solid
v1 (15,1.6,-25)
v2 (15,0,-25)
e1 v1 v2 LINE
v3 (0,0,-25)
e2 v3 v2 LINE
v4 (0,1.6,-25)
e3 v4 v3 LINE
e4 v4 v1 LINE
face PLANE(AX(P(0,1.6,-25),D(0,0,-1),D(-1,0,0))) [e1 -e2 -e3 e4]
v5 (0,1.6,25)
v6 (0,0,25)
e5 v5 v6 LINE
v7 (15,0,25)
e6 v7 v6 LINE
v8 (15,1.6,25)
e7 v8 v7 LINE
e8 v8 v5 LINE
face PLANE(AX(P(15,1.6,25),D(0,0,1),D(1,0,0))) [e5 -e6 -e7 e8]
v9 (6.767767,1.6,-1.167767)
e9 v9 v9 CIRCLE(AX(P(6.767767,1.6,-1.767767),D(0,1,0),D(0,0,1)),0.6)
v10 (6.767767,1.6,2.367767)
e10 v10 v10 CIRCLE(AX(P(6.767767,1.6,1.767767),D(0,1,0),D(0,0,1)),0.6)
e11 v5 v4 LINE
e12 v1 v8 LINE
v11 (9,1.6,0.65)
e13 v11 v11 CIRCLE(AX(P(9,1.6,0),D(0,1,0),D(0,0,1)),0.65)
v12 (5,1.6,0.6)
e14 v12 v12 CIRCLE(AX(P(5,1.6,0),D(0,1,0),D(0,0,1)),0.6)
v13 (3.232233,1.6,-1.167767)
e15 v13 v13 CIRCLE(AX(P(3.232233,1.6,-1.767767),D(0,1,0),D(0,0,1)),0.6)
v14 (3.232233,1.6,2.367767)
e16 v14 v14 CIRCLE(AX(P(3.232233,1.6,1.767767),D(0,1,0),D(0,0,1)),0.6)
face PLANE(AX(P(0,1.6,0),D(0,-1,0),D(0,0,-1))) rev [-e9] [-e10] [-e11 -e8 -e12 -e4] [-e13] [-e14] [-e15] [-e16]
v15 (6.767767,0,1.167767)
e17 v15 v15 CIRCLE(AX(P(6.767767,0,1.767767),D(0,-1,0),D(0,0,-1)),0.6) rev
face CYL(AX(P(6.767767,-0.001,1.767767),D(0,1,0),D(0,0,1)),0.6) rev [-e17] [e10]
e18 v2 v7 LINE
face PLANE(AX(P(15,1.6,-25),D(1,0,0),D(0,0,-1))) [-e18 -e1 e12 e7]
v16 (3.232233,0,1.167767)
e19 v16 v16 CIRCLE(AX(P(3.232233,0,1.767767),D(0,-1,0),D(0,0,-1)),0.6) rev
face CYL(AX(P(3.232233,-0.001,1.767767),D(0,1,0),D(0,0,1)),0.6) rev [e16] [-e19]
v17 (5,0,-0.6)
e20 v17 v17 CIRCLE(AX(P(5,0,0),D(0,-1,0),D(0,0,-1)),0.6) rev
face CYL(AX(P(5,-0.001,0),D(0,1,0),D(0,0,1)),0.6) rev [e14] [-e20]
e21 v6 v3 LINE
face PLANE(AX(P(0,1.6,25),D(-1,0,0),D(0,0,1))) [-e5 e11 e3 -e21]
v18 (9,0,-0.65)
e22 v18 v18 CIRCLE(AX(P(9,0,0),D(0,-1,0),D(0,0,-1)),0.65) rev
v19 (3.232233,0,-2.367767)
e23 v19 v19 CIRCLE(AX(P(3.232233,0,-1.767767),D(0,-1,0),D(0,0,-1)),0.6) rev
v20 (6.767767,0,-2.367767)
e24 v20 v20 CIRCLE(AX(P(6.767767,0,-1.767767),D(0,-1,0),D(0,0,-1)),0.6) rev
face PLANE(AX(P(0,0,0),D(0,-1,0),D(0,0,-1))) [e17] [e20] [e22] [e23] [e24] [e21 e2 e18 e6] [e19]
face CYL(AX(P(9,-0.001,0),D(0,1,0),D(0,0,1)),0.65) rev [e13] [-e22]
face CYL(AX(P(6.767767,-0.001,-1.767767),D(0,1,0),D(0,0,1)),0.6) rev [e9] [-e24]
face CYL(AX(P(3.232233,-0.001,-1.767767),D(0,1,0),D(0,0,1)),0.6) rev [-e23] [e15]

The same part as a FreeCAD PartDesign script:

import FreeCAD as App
import Part
import Sketcher


def add_polygon(sketch, points):
    """Adds a closed chain of lines whose ends are joined by coincident constraints."""
    first, n = sketch.GeometryCount, len(points)
    for a, b in zip(points, points[1:] + points[:1]):
        sketch.addGeometry(Part.LineSegment(App.Vector(*a, 0), App.Vector(*b, 0)), False)
    for i in range(n):
        sketch.addConstraint(Sketcher.Constraint("Coincident", first + i, 2, first + (i + 1) % n, 1))

doc = App.newDocument("Part")
body = doc.addObject("PartDesign::Body", "Body")

# Sketch on XZ plane
sketch1 = body.newObject("Sketcher::SketchObject", "Sketch")
sketch1.AttachmentSupport = (doc.getObject("XZ_Plane"), [""])
sketch1.MapMode = "FlatFace"
add_polygon(sketch1, [(0, -25), (0, 25), (15, 25), (15, -25)])  # lines 0-3
sketch1.addConstraint(Sketcher.Constraint("Vertical", 0))
sketch1.addConstraint(Sketcher.Constraint("Horizontal", 1))
sketch1.addConstraint(Sketcher.Constraint("Vertical", 2))
sketch1.addConstraint(Sketcher.Constraint("Horizontal", 3))
sketch1.addConstraint(Sketcher.Constraint("Symmetric", 0, 2, 3, 2, -1, 1))
sketch1.addConstraint(Sketcher.Constraint("DistanceX", 1, 1, 1, 2, 15.0))
sketch1.addConstraint(Sketcher.Constraint("DistanceY", 0, 1, 0, 2, 50.0))
pad1 = body.newObject("PartDesign::Pad", "Pad")
pad1.Profile = sketch1
pad1.Length = 1.6
pad1.Reversed = True

# Sketch on XZ plane
sketch2 = body.newObject("Sketcher::SketchObject", "Sketch001")
sketch2.AttachmentSupport = (doc.getObject("XZ_Plane"), [""])
sketch2.MapMode = "FlatFace"
sketch2.AttachmentOffset = App.Placement(App.Vector(0, 0, -1.6), App.Rotation())
sketch2.addGeometry(Part.Circle(App.Vector(5, 0, 0), App.Vector(0, 0, 1), 0.6), False)
sketch2.addConstraint(Sketcher.Constraint("PointOnObject", 0, 3, -1))
sketch2.addConstraint(Sketcher.Constraint("Diameter", 0, 1.2))
sketch2.addConstraint(Sketcher.Constraint("DistanceX", -1, 1, 0, 3, 5.0))
pocket1 = body.newObject("PartDesign::Pocket", "Pocket")
pocket1.Profile = sketch2
pocket1.Type = "UpToFirst"
pocket1.Reversed = True

# Sketch on XZ plane
sketch3 = body.newObject("Sketcher::SketchObject", "Sketch002")
sketch3.AttachmentSupport = (doc.getObject("XZ_Plane"), [""])
sketch3.MapMode = "FlatFace"
sketch3.AttachmentOffset = App.Placement(App.Vector(0, 0, -1.6), App.Rotation())
sketch3.addGeometry(Part.Circle(App.Vector(3.2, -1.8, 0), App.Vector(0, 0, 1), 0.6), False)
sketch3.addConstraint(Sketcher.Constraint("Diameter", 0, 1.2))
sketch3.addConstraint(Sketcher.Constraint("DistanceX", -1, 1, 0, 3, 3.232233))
sketch3.addConstraint(Sketcher.Constraint("DistanceY", 0, 3, -1, 1, 1.767767))
pocket2 = body.newObject("PartDesign::Pocket", "Pocket001")
pocket2.Profile = sketch3
pocket2.Type = "UpToFirst"
pocket2.Reversed = True

# Sketch on XZ plane
sketch4 = body.newObject("Sketcher::SketchObject", "Sketch003")
sketch4.AttachmentSupport = (doc.getObject("XZ_Plane"), [""])
sketch4.MapMode = "FlatFace"
sketch4.AttachmentOffset = App.Placement(App.Vector(0, 0, -1.6), App.Rotation())
sketch4.addGeometry(Part.Circle(App.Vector(6.8, -1.8, 0), App.Vector(0, 0, 1), 0.6), False)
sketch4.addConstraint(Sketcher.Constraint("Diameter", 0, 1.2))
sketch4.addConstraint(Sketcher.Constraint("DistanceX", -1, 1, 0, 3, 6.767767))
sketch4.addConstraint(Sketcher.Constraint("DistanceY", 0, 3, -1, 1, 1.767767))
pocket3 = body.newObject("PartDesign::Pocket", "Pocket002")
pocket3.Profile = sketch4
pocket3.Type = "UpToFirst"
pocket3.Reversed = True

# Sketch on XZ plane
sketch5 = body.newObject("Sketcher::SketchObject", "Sketch004")
sketch5.AttachmentSupport = (doc.getObject("XZ_Plane"), [""])
sketch5.MapMode = "FlatFace"
sketch5.AttachmentOffset = App.Placement(App.Vector(0, 0, -1.6), App.Rotation())
sketch5.addGeometry(Part.Circle(App.Vector(6.8, 1.8, 0), App.Vector(0, 0, 1), 0.6), False)
sketch5.addConstraint(Sketcher.Constraint("Diameter", 0, 1.2))
sketch5.addConstraint(Sketcher.Constraint("DistanceX", -1, 1, 0, 3, 6.767767))
sketch5.addConstraint(Sketcher.Constraint("DistanceY", -1, 1, 0, 3, 1.767767))
pocket4 = body.newObject("PartDesign::Pocket", "Pocket003")
pocket4.Profile = sketch5
pocket4.Type = "UpToFirst"
pocket4.Reversed = True

# Sketch on XZ plane
sketch6 = body.newObject("Sketcher::SketchObject", "Sketch005")
sketch6.AttachmentSupport = (doc.getObject("XZ_Plane"), [""])
sketch6.MapMode = "FlatFace"
sketch6.AttachmentOffset = App.Placement(App.Vector(0, 0, -1.6), App.Rotation())
sketch6.addGeometry(Part.Circle(App.Vector(3.2, 1.8, 0), App.Vector(0, 0, 1), 0.6), False)
sketch6.addConstraint(Sketcher.Constraint("Diameter", 0, 1.2))
sketch6.addConstraint(Sketcher.Constraint("DistanceX", -1, 1, 0, 3, 3.232233))
sketch6.addConstraint(Sketcher.Constraint("DistanceY", -1, 1, 0, 3, 1.767767))
pocket5 = body.newObject("PartDesign::Pocket", "Pocket004")
pocket5.Profile = sketch6
pocket5.Type = "UpToFirst"
pocket5.Reversed = True

# Sketch on XZ plane
sketch7 = body.newObject("Sketcher::SketchObject", "Sketch006")
sketch7.AttachmentSupport = (doc.getObject("XZ_Plane"), [""])
sketch7.MapMode = "FlatFace"
sketch7.AttachmentOffset = App.Placement(App.Vector(0, 0, -1.6), App.Rotation())
sketch7.addGeometry(Part.Circle(App.Vector(9, 0, 0), App.Vector(0, 0, 1), 0.7), False)
sketch7.addConstraint(Sketcher.Constraint("PointOnObject", 0, 3, -1))
sketch7.addConstraint(Sketcher.Constraint("Diameter", 0, 1.3))
sketch7.addConstraint(Sketcher.Constraint("DistanceX", -1, 1, 0, 3, 9.0))
pocket6 = body.newObject("PartDesign::Pocket", "Pocket005")
pocket6.Profile = sketch7
pocket6.Type = "UpToFirst"
pocket6.Reversed = True

doc.recompute()
